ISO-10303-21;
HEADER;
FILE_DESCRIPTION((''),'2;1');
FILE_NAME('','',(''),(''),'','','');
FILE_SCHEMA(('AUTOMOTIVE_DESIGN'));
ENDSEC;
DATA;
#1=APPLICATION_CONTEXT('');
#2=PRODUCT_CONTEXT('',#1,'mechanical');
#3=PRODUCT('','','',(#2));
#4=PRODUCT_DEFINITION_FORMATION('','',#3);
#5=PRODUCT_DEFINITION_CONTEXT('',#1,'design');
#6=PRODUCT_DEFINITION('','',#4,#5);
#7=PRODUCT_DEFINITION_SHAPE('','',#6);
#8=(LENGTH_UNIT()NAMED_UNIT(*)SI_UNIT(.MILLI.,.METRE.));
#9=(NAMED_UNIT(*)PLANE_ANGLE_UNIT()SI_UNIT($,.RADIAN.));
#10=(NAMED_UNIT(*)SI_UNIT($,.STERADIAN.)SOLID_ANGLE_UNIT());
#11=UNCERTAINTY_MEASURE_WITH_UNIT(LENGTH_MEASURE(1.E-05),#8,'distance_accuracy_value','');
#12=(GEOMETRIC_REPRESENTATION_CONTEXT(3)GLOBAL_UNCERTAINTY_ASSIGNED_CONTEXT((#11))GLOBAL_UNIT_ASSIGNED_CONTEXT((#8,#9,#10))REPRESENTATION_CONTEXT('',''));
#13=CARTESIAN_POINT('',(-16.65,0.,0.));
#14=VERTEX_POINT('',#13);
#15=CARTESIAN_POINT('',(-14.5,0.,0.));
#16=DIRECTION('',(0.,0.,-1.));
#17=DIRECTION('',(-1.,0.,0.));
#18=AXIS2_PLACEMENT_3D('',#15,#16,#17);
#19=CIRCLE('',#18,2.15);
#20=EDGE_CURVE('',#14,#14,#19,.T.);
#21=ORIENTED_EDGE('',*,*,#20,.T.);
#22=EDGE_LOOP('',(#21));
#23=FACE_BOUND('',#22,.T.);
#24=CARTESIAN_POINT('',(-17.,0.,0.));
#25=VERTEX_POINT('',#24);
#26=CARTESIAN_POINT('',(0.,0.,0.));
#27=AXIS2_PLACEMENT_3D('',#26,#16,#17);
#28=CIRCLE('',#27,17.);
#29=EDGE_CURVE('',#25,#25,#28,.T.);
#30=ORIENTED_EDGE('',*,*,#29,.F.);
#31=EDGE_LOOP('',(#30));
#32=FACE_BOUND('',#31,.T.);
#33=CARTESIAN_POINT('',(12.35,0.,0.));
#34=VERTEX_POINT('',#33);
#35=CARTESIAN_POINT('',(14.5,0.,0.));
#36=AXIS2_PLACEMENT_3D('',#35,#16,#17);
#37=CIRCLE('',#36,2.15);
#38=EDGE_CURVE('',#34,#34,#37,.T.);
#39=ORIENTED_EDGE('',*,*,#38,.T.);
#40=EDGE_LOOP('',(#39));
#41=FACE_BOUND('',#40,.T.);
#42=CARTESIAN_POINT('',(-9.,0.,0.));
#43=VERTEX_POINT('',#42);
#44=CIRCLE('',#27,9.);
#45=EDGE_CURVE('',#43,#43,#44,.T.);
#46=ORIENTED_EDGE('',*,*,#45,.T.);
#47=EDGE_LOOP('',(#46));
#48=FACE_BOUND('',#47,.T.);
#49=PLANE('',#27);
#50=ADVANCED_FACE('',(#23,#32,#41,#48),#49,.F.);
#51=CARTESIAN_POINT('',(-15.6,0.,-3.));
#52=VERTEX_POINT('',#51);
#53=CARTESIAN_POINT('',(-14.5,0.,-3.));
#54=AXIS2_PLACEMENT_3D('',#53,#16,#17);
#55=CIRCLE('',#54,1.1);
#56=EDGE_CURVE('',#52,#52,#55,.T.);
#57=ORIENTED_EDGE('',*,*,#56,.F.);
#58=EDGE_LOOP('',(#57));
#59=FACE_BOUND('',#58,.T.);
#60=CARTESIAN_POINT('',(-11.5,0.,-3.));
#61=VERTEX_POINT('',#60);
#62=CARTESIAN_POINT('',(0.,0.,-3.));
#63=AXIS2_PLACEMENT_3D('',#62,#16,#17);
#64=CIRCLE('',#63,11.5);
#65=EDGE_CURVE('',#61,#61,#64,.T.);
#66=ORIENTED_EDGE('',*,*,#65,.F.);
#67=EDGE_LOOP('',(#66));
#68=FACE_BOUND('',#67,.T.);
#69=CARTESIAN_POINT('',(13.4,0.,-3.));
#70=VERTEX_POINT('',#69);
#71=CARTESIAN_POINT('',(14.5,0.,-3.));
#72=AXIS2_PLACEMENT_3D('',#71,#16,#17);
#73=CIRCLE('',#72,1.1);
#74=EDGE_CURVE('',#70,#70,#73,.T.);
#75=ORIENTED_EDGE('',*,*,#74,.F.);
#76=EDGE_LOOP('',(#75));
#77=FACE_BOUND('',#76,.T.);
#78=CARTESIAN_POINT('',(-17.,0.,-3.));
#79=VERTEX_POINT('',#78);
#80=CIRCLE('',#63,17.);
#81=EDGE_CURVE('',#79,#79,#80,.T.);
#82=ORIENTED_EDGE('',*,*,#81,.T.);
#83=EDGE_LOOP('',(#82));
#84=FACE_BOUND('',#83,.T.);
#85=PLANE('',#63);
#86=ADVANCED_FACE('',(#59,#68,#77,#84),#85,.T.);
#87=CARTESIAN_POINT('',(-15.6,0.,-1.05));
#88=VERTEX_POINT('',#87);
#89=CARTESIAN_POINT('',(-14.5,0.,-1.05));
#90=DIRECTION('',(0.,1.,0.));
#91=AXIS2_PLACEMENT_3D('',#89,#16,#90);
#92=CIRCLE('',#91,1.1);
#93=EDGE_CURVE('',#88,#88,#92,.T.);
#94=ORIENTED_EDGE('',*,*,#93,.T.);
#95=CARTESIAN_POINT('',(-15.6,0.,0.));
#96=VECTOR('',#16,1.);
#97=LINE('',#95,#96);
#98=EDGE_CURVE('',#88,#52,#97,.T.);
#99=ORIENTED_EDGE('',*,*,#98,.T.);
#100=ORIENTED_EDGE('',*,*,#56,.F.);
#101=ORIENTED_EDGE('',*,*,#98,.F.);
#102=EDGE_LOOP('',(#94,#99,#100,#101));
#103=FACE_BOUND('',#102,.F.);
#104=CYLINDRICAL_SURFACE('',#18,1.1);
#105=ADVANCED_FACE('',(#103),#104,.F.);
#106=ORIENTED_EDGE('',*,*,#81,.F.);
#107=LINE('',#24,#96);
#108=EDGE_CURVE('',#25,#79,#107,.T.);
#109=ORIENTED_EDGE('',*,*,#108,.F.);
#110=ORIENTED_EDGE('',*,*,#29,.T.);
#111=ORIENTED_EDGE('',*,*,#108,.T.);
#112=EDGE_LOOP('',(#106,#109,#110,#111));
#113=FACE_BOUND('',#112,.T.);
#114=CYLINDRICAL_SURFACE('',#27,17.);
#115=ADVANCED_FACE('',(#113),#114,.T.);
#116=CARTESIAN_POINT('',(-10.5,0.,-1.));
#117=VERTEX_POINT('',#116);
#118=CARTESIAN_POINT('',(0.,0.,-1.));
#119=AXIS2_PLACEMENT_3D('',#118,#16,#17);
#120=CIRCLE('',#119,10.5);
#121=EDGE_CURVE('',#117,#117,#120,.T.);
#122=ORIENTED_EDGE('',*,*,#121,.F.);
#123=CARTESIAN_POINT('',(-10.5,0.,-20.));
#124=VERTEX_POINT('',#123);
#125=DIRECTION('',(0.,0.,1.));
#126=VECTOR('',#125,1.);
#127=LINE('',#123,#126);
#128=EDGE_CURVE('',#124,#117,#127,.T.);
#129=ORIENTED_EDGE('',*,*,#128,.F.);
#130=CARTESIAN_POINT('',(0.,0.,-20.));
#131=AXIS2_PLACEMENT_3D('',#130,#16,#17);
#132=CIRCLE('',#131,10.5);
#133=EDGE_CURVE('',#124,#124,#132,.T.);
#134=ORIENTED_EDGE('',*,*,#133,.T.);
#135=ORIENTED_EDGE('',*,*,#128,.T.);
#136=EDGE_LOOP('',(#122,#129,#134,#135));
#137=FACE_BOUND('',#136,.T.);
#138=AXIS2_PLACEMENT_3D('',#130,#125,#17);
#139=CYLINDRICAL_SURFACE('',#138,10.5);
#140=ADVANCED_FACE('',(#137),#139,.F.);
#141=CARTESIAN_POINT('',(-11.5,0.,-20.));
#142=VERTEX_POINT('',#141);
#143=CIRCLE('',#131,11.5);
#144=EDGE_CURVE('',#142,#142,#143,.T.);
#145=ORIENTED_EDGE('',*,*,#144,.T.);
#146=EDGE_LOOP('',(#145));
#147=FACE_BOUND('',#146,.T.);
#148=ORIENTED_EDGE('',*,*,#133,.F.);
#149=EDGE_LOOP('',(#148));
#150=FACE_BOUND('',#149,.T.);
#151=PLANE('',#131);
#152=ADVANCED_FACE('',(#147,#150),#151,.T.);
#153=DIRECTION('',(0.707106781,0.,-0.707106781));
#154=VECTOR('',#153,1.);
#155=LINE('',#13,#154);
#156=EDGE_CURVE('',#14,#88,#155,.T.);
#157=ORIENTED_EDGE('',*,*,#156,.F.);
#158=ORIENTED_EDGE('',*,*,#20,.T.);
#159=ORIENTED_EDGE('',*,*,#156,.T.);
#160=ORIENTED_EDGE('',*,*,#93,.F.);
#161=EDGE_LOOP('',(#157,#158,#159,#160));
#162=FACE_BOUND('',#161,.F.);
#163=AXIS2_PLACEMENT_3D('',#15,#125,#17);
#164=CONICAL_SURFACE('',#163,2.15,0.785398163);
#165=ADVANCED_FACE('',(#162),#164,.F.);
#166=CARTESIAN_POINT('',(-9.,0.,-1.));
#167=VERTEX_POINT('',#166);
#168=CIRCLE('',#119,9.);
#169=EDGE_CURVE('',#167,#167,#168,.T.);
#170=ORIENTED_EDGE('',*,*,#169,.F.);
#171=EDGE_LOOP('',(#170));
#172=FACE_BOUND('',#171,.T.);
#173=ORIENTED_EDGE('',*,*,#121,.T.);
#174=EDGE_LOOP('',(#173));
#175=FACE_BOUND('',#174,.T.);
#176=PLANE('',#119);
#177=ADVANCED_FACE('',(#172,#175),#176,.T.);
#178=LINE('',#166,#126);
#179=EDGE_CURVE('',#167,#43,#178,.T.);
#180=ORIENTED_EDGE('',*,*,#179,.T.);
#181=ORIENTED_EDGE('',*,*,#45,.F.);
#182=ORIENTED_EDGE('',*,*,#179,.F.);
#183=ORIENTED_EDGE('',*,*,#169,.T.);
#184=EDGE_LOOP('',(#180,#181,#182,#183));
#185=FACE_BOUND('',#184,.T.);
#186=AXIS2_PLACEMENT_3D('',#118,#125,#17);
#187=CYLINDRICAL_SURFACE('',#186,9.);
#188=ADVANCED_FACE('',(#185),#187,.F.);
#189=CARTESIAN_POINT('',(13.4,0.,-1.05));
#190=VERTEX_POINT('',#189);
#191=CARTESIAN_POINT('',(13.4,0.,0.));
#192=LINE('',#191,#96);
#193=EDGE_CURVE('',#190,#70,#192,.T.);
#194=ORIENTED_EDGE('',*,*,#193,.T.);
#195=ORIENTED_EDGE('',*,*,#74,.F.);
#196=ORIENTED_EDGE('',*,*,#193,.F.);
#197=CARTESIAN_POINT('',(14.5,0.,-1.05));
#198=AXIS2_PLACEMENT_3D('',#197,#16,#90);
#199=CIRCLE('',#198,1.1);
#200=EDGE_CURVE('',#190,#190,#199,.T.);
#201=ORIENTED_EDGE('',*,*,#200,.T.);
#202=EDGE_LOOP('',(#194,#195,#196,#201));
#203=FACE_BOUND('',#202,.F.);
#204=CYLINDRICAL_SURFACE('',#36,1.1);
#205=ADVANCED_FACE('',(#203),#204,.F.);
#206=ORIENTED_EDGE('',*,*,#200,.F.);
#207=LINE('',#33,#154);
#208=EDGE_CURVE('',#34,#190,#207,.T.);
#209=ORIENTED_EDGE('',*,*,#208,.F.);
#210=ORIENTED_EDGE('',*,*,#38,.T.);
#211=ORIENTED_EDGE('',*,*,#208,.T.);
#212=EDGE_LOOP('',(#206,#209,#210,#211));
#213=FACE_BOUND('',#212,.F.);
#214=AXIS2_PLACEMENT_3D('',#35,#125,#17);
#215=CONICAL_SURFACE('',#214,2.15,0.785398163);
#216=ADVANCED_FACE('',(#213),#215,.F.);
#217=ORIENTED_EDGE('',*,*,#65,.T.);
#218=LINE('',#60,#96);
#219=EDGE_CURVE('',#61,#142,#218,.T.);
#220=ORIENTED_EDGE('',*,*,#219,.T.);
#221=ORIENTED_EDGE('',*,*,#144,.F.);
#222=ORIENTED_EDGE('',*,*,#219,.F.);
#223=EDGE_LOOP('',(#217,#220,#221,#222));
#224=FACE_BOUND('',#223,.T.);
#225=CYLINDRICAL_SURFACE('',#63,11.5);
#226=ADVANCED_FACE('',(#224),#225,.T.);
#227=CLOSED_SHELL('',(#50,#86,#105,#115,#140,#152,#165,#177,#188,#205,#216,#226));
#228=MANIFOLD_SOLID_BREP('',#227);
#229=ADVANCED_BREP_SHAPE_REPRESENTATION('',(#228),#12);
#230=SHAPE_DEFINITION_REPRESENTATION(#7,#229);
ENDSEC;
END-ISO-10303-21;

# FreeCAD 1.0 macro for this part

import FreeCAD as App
import Part
import Sketcher

V = App.Vector

doc = App.newDocument("Part")
body = doc.addObject("PartDesign::Body", "Body")

# Sketch on XZ plane
sketch1 = body.newObject("Sketcher::SketchObject", "Sketch")
sketch1.AttachmentSupport = (doc.getObject("XZ_Plane"), [""])
sketch1.MapMode = "FlatFace"
sketch1.addGeometry([
    Part.LineSegment(V(-9, -1, 0), V(-9, 0, 0)),  # 0
    Part.LineSegment(V(-9, 0, 0), V(-17, 0, 0)),  # 1
    Part.LineSegment(V(-17, 0, 0), V(-17, -3, 0)),  # 2
    Part.LineSegment(V(-17, -3, 0), V(-11.5, -3, 0)),  # 3
    Part.LineSegment(V(-11.5, -3, 0), V(-11.5, -20, 0)),  # 4
    Part.LineSegment(V(-11.5, -20, 0), V(-10.5, -20, 0)),  # 5
    Part.LineSegment(V(-10.5, -20, 0), V(-10.5, -1, 0)),  # 6
    Part.LineSegment(V(-10.5, -1, 0), V(-9, -1, 0)),  # 7
], False)
sketch1.addConstraint([
    Sketcher.Constraint("Coincident", 0, 2, 1, 1),
    Sketcher.Constraint("Coincident", 1, 2, 2, 1),
    Sketcher.Constraint("Coincident", 2, 2, 3, 1),
    Sketcher.Constraint("Coincident", 3, 2, 4, 1),
    Sketcher.Constraint("Coincident", 4, 2, 5, 1),
    Sketcher.Constraint("Coincident", 5, 2, 6, 1),
    Sketcher.Constraint("Coincident", 6, 2, 7, 1),
    Sketcher.Constraint("Coincident", 7, 2, 0, 1),
    Sketcher.Constraint("Vertical", 0),
    Sketcher.Constraint("Horizontal", 1),
    Sketcher.Constraint("Vertical", 2),
    Sketcher.Constraint("Horizontal", 3),
    Sketcher.Constraint("Vertical", 4),
    Sketcher.Constraint("Horizontal", 5),
    Sketcher.Constraint("Vertical", 6),
    Sketcher.Constraint("Horizontal", 7),
    Sketcher.Constraint("PointOnObject", 0, 2, -1),
    Sketcher.Constraint("Equal", 5, 0),
    Sketcher.Constraint("DistanceX", 1, 2, 1, 1, 8.0),
    Sketcher.Constraint("DistanceX", 5, 1, 5, 2, 1.0),
    Sketcher.Constraint("DistanceY", 2, 2, 2, 1, 3.0),
    Sketcher.Constraint("DistanceY", 4, 2, 4, 1, 17.0),
    Sketcher.Constraint("DistanceX", 3, 1, 3, 2, 5.5),
    Sketcher.Constraint("DistanceX", 0, 2, -1, 1, 9.0),
])
revolution = body.newObject("PartDesign::Revolution", "Revolution")
revolution.Profile = sketch1
revolution.ReferenceAxis = (sketch1, ["V_Axis"])
revolution.Angle = 360

# Sketch on XY plane
sketch2 = body.newObject("Sketcher::SketchObject", "Sketch001")
sketch2.AttachmentSupport = (doc.getObject("XY_Plane"), [""])
sketch2.MapMode = "FlatFace"
sketch2.addGeometry([
    Part.Circle(V(-14.5, 0, 0), V(0, 0, 1), 1.1),
    Part.Circle(V(14.5, 0, 0), V(0, 0, 1), 1.1),
], False)
sketch2.addConstraint([
    Sketcher.Constraint("Equal", 0, 1),
    Sketcher.Constraint("Symmetric", 0, 3, 1, 3, -1, 1),
    Sketcher.Constraint("PointOnObject", 0, 3, -1),
    Sketcher.Constraint("Diameter", 0, 2.2),
    Sketcher.Constraint("DistanceX", 0, 3, 1, 3, 29.0),
])
doc.recompute()
hole = body.newObject("PartDesign::Hole", "Hole")
hole.Profile = sketch2
hole.ThreadType = "None"
hole.Diameter = 2.2
hole.DepthType = "ThroughAll"
hole.HoleCutType = "Countersink"
hole.HoleCutDiameter = 4.3
hole.HoleCutCountersinkAngle = 90

doc.recompute()
